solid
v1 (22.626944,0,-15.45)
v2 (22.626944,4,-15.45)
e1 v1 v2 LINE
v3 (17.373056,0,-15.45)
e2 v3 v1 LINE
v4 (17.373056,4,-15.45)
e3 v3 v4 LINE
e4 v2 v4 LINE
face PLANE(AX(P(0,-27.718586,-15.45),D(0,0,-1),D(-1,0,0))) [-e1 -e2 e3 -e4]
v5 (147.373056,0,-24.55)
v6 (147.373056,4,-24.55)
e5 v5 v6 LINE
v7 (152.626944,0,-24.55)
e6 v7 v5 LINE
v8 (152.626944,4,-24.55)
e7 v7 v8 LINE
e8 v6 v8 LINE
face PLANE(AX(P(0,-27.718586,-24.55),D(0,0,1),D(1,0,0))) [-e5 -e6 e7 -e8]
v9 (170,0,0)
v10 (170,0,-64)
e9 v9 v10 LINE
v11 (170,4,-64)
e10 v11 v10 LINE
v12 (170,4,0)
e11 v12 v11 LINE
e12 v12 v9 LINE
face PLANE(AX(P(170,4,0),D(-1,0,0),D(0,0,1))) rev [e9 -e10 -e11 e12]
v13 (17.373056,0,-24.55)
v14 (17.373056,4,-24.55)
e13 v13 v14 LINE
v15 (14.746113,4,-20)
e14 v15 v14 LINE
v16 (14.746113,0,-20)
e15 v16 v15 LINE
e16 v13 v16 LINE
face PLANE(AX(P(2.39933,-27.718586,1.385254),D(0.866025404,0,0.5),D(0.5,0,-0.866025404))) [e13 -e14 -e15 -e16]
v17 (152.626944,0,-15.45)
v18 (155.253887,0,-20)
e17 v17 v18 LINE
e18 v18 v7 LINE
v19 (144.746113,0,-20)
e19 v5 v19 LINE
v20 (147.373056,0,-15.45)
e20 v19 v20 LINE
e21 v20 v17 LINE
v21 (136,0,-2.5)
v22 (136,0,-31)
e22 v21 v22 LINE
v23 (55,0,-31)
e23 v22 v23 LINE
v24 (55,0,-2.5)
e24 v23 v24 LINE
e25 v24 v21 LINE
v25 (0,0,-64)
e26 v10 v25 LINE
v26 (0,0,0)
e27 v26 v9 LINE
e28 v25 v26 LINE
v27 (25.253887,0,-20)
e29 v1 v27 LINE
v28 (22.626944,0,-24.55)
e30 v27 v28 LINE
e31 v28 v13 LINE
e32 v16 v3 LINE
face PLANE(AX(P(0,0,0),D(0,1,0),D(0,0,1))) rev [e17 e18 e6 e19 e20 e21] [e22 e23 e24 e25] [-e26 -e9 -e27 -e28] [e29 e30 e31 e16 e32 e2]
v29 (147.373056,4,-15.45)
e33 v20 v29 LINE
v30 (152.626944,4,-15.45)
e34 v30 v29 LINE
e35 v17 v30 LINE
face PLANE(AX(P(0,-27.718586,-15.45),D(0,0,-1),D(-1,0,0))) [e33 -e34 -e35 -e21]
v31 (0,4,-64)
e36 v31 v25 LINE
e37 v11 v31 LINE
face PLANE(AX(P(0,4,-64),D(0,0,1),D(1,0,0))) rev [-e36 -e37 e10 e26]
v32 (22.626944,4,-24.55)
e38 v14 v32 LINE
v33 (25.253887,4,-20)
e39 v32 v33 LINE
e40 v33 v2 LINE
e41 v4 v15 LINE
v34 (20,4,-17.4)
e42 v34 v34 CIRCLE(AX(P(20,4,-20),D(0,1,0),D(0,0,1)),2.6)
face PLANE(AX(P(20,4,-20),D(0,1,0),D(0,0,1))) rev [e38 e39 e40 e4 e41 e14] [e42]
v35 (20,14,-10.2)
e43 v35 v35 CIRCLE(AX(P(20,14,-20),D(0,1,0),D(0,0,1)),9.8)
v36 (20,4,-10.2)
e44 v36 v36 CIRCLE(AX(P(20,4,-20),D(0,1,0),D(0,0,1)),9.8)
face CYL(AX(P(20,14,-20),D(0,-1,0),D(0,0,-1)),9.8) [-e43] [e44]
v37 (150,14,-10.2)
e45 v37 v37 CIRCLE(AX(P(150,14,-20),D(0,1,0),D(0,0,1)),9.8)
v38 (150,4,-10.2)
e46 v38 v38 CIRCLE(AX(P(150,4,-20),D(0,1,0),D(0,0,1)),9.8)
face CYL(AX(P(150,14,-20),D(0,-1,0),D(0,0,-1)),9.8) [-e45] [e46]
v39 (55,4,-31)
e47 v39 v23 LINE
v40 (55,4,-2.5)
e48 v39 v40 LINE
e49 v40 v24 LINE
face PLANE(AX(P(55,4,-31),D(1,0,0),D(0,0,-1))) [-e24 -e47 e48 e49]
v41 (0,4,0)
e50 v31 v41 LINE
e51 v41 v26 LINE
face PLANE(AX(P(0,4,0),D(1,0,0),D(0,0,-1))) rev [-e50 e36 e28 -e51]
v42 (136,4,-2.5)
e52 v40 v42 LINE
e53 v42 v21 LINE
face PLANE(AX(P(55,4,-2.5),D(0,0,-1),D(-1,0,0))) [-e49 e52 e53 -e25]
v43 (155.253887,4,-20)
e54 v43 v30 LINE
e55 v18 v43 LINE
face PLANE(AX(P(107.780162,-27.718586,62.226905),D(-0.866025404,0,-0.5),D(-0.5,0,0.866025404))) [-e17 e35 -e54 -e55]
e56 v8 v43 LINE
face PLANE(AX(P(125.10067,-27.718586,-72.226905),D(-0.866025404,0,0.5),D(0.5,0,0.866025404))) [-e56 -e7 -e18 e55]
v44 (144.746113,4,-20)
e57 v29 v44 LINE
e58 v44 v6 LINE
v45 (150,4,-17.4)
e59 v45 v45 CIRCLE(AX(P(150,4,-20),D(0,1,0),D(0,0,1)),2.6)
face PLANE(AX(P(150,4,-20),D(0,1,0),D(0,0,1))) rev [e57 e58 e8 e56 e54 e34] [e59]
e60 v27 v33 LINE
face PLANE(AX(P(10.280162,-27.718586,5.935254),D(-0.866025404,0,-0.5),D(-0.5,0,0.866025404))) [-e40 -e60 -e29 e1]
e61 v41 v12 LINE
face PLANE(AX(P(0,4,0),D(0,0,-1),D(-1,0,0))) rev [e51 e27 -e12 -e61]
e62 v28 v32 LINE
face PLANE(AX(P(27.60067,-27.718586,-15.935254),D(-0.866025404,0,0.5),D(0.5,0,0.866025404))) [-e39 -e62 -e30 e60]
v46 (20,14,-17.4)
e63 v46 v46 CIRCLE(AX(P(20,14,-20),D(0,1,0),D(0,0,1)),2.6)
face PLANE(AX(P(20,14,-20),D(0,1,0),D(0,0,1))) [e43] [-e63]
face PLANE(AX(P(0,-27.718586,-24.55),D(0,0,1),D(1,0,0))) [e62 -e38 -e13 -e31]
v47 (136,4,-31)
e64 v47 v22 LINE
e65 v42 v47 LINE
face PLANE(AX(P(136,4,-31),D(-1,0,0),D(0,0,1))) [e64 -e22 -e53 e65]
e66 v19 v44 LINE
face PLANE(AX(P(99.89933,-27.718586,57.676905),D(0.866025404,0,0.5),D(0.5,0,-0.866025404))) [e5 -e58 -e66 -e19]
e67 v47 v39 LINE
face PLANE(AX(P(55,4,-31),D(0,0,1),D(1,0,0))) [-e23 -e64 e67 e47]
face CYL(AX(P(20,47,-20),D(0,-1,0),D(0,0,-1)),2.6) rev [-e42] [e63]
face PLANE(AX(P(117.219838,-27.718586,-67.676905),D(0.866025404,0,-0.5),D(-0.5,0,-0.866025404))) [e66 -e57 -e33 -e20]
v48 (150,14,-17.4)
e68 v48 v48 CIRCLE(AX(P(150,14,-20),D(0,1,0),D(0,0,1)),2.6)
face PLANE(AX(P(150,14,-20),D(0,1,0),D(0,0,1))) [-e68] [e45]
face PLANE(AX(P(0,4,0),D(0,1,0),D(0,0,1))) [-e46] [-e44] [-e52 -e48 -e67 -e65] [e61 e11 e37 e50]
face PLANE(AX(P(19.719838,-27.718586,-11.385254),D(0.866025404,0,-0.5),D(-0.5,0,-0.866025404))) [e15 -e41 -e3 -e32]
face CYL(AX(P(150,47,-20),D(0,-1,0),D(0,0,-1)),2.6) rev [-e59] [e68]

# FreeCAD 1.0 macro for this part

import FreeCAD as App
import Part
import Sketcher
from FreeCAD import Vector
Q = App.Units.Quantity


def add_polygon(sketch, points):
    """Adds a closed chain of lines whose ends are joined by coincident constraints."""
    first, n = sketch.GeometryCount, len(points)
    for a, b in zip(points, points[1:] + points[:1]):
        sketch.addGeometry(Part.LineSegment(App.Vector(*a, 0), App.Vector(*b, 0)), False)
    for i in range(n):
        sketch.addConstraint(Sketcher.Constraint("Coincident", first + i, 2, first + (i + 1) % n, 1))

doc = App.newDocument("Part")
body = doc.addObject("PartDesign::Body", "Body")

# Sketch on XZ plane
sketch1 = body.newObject("Sketcher::SketchObject", "Sketch")
sketch1.AttachmentSupport = (doc.getObject("XZ_Plane"), [""])
sketch1.MapMode = "FlatFace"
add_polygon(sketch1, [(0, -64), (0, 0), (170, 0), (170, -64)])  # lines 0-3
sketch1.addGeometry(Part.Circle(Vector(20, -20, 0), Vector(0, 0, 1), 10), False)  # 4
add_polygon(sketch1, [(136, -2), (55, -2), (55, -31), (136, -31)])  # lines 5-8
sketch1.addGeometry(Part.Circle(Vector(150, -20, 0), Vector(0, 0, 1), 10), False)  # 9
sketch1.addConstraint([
    Sketcher.Constraint("Vertical", 0),
    Sketcher.Constraint("Horizontal", 1),
    Sketcher.Constraint("Vertical", 2),
    Sketcher.Constraint("Horizontal", 3),
    Sketcher.Constraint("Horizontal", 5),
    Sketcher.Constraint("Vertical", 6),
    Sketcher.Constraint("Horizontal", 7),
    Sketcher.Constraint("Vertical", 8),
    Sketcher.Constraint("Coincident", 0, 2, -1, 1),
    Sketcher.Constraint("Equal", 4, 9),
    Sketcher.Constraint("Horizontal", 4, 3, 9, 3),
    Sketcher.Constraint("Diameter", 4, Q("20 mm")),
    Sketcher.Constraint("DistanceX", 1, 1, 1, 2, Q("170 mm")),
    Sketcher.Constraint("DistanceX", 5, 2, 5, 1, Q("81 mm")),
    Sketcher.Constraint("DistanceY", 0, 1, 0, 2, Q("64 mm")),
    Sketcher.Constraint("DistanceY", 6, 2, 6, 1, Q("28.5 mm")),
    Sketcher.Constraint("DistanceX", -1, 1, 4, 3, Q("20 mm")),
    Sketcher.Constraint("DistanceY", 4, 3, -1, 1, Q("20 mm")),
    Sketcher.Constraint("DistanceX", -1, 1, 9, 3, Q("150 mm")),
    Sketcher.Constraint("DistanceX", -1, 1, 5, 2, Q("55 mm")),
    Sketcher.Constraint("DistanceY", 6, 2, -1, 1, Q("31 mm")),
])
pad1 = body.newObject("PartDesign::Pad", "Pad")
pad1.Profile = sketch1
pad1.Length = 4
pad1.Reversed = True

# Sketch on XZ plane
sketch2 = body.newObject("Sketcher::SketchObject", "Sketch001")
sketch2.AttachmentSupport = (doc.getObject("XZ_Plane"), [""])
sketch2.MapMode = "FlatFace"
sketch2.addGeometry([
    Part.Circle(Vector(20, -20, 0), Vector(0, 0, 1), 10),
    Part.Circle(Vector(20, -20, 0), Vector(0, 0, 1), 10),
    Part.Circle(Vector(150, -20, 0), Vector(0, 0, 1), 10),
    Part.Circle(Vector(150, -20, 0), Vector(0, 0, 1), 10),
], False)
sketch2.addConstraint([
    Sketcher.Constraint("Coincident", 1, 3, 0, 3),
    Sketcher.Constraint("Coincident", 3, 3, 2, 3),
    Sketcher.Constraint("Equal", 0, 2),
    Sketcher.Constraint("Equal", 1, 3),
    Sketcher.Constraint("Horizontal", 1, 3, 2, 3),
    Sketcher.Constraint("Diameter", 0, Q("20 mm")),
    Sketcher.Constraint("Diameter", 1, Q("19.6 mm")),
    Sketcher.Constraint("DistanceX", -1, 1, 0, 3, Q("20 mm")),
    Sketcher.Constraint("DistanceY", 0, 3, -1, 1, Q("20 mm")),
    Sketcher.Constraint("DistanceX", -1, 1, 2, 3, Q("150 mm")),
])
pad2 = body.newObject("PartDesign::Pad", "Pad001")
pad2.Profile = sketch2
pad2.Length = 4
pad2.Reversed = True
body2 = doc.addObject("PartDesign::Body", "Body001")

# Sketch on XZ plane
sketch3 = body2.newObject("Sketcher::SketchObject", "Sketch002")
sketch3.AttachmentSupport = (doc.getObject("XZ_Plane001"), [""])
sketch3.MapMode = "FlatFace"
sketch3.AttachmentOffset = App.Placement(Vector(0, 0, -4), App.Rotation())
sketch3.addGeometry(Part.Circle(Vector(20, -20, 0), Vector(0, 0, 1), 10), False)
sketch3.addConstraint([
    Sketcher.Constraint("Diameter", 0, Q("19.6 mm")),
    Sketcher.Constraint("DistanceX", -1, 1, 0, 3, Q("20 mm")),
    Sketcher.Constraint("DistanceY", 0, 3, -1, 1, Q("20 mm")),
])
pad3 = body2.newObject("PartDesign::Pad", "Pad002")
pad3.Profile = sketch3
pad3.Length = 10
pad3.Reversed = True
body3 = doc.addObject("PartDesign::Body", "Body002")

# Sketch on XZ plane
sketch4 = body3.newObject("Sketcher::SketchObject", "Sketch003")
sketch4.AttachmentSupport = (doc.getObject("XZ_Plane002"), [""])
sketch4.MapMode = "FlatFace"
sketch4.AttachmentOffset = App.Placement(Vector(0, 0, -4), App.Rotation())
sketch4.addGeometry(Part.Circle(Vector(150, -20, 0), Vector(0, 0, 1), 10), False)
sketch4.addConstraint([
    Sketcher.Constraint("Diameter", 0, Q("19.6 mm")),
    Sketcher.Constraint("DistanceX", -1, 1, 0, 3, Q("150 mm")),
    Sketcher.Constraint("DistanceY", 0, 3, -1, 1, Q("20 mm")),
])
pad4 = body3.newObject("PartDesign::Pad", "Pad003")
pad4.Profile = sketch4
pad4.Length = 10
pad4.Reversed = True
body.AllowCompound = True
doc.recompute()

boolean = body.newObject("PartDesign::Boolean", "Boolean")
boolean.Type = "Fuse"
boolean.addObjects([body2])
doc.recompute()

boolean2 = body.newObject("PartDesign::Boolean", "Boolean001")
boolean2.Type = "Fuse"
boolean2.addObjects([body3])

# Sketch on XZ plane
sketch5 = body.newObject("Sketcher::SketchObject", "Sketch004")
sketch5.AttachmentSupport = (doc.getObject("XZ_Plane"), [""])
sketch5.MapMode = "FlatFace"
sketch5.addGeometry(Part.Circle(Vector(20, -20, 0), Vector(0, 0, 1), 9.8), False)  # 0
add_polygon(sketch5, [(22.6, -15.4), (25.3, -20), (22.6, -24.6), (17.4, -24.6), (14.7, -20), (17.4, -15.4)])  # lines 1-6
sketch5.addGeometry(Part.Circle(Vector(20, -20, 0), Vector(0, 0, 1), 2.6), False)  # 7
sketch5.addGeometry(Part.Circle(Vector(150, -20, 0), Vector(0, 0, 1), 9.8), False)  # 8
add_polygon(sketch5, [(152.6, -15.4), (155.3, -20), (152.6, -24.6), (147.4, -24.6), (144.7, -20), (147.4, -15.4)])  # lines 9-14
sketch5.addGeometry(Part.Circle(Vector(150, -20, 0), Vector(0, 0, 1), 2.6), False)  # 15
sketch5.addConstraint([
    Sketcher.Constraint("Horizontal", 3),
    Sketcher.Constraint("Horizontal", 6),
    Sketcher.Constraint("Horizontal", 11),
    Sketcher.Constraint("Horizontal", 14),
    Sketcher.Constraint("Coincident", 7, 3, 0, 3),
    Sketcher.Constraint("Coincident", 15, 3, 8, 3),
    Sketcher.Constraint("Equal", 0, 8),
    Sketcher.Constraint("Equal", 7, 15),
    Sketcher.Constraint("Parallel", 1, 4),
    Sketcher.Constraint("Parallel", 2, 5),
    Sketcher.Constraint("Parallel", 4, 9),
    Sketcher.Constraint("Parallel", 5, 10),
    Sketcher.Constraint("Parallel", 9, 12),
    Sketcher.Constraint("Parallel", 10, 13),
    Sketcher.Constraint("Horizontal", 7, 3, 8, 3),
    Sketcher.Constraint("Horizontal", 15, 3, 1, 2),
    Sketcher.Constraint("Horizontal", 1, 2, 4, 2),
    Sketcher.Constraint("Horizontal", 4, 2, 9, 2),
    Sketcher.Constraint("Horizontal", 3, 2, 10, 2),
    Sketcher.Constraint("Horizontal", 9, 2, 12, 2),
    Sketcher.Constraint("Horizontal", 6, 2, 13, 2),
    Sketcher.Constraint("Vertical", 3, 2, 5, 2),
    Sketcher.Constraint("Vertical", 2, 2, 6, 2),
    Sketcher.Constraint("Equal", 6, 11),
    Sketcher.Constraint("Diameter", 0, Q("19.6 mm")),
    Sketcher.Constraint("Diameter", 7, Q("5.2 mm")),
    Sketcher.Constraint("Angle", 1, Q("-60 deg")),
    Sketcher.Constraint("DistanceX", -1, 1, 0, 3, Q("20 mm")),
    Sketcher.Constraint("DistanceY", 0, 3, -1, 1, Q("20 mm")),
    Sketcher.Constraint("DistanceX", -1, 1, 8, 3, Q("150 mm")),
    Sketcher.Constraint("DistanceX", 1, 2, 9, 2, Q("130 mm")),
    Sketcher.Constraint("DistanceY", 3, 2, 5, 2, Q("9.1 mm")),
    Sketcher.Constraint("DistanceX", 3, 2, 3, 1, Q("5.253887 mm")),
    Sketcher.Constraint("DistanceX", -1, 1, 1, 2, Q("25.253887 mm")),
])
pad5 = body.newObject("PartDesign::Pad", "Pad004")
pad5.Profile = sketch5
pad5.Length = 4
pad5.Reversed = True

# Sketch on XZ plane
sketch6 = body.newObject("Sketcher::SketchObject", "Sketch005")
sketch6.AttachmentSupport = (doc.getObject("XZ_Plane"), [""])
sketch6.MapMode = "FlatFace"
sketch6.addGeometry([
    Part.Circle(Vector(20, -20, 0), Vector(0, 0, 1), 2.6),
    Part.Circle(Vector(150, -20, 0), Vector(0, 0, 1), 2.6),
], False)
sketch6.addConstraint([
    Sketcher.Constraint("Equal", 0, 1),
    Sketcher.Constraint("Horizontal", 0, 3, 1, 3),
    Sketcher.Constraint("Diameter", 0, Q("5.2 mm")),
    Sketcher.Constraint("DistanceX", -1, 1, 0, 3, Q("20 mm")),
    Sketcher.Constraint("DistanceY", 0, 3, -1, 1, Q("20 mm")),
    Sketcher.Constraint("DistanceX", -1, 1, 1, 3, Q("150 mm")),
])
pocket1 = body.newObject("PartDesign::Pocket", "Pocket")
pocket1.Profile = sketch6
pocket1.Length = 47

doc.recompute()
